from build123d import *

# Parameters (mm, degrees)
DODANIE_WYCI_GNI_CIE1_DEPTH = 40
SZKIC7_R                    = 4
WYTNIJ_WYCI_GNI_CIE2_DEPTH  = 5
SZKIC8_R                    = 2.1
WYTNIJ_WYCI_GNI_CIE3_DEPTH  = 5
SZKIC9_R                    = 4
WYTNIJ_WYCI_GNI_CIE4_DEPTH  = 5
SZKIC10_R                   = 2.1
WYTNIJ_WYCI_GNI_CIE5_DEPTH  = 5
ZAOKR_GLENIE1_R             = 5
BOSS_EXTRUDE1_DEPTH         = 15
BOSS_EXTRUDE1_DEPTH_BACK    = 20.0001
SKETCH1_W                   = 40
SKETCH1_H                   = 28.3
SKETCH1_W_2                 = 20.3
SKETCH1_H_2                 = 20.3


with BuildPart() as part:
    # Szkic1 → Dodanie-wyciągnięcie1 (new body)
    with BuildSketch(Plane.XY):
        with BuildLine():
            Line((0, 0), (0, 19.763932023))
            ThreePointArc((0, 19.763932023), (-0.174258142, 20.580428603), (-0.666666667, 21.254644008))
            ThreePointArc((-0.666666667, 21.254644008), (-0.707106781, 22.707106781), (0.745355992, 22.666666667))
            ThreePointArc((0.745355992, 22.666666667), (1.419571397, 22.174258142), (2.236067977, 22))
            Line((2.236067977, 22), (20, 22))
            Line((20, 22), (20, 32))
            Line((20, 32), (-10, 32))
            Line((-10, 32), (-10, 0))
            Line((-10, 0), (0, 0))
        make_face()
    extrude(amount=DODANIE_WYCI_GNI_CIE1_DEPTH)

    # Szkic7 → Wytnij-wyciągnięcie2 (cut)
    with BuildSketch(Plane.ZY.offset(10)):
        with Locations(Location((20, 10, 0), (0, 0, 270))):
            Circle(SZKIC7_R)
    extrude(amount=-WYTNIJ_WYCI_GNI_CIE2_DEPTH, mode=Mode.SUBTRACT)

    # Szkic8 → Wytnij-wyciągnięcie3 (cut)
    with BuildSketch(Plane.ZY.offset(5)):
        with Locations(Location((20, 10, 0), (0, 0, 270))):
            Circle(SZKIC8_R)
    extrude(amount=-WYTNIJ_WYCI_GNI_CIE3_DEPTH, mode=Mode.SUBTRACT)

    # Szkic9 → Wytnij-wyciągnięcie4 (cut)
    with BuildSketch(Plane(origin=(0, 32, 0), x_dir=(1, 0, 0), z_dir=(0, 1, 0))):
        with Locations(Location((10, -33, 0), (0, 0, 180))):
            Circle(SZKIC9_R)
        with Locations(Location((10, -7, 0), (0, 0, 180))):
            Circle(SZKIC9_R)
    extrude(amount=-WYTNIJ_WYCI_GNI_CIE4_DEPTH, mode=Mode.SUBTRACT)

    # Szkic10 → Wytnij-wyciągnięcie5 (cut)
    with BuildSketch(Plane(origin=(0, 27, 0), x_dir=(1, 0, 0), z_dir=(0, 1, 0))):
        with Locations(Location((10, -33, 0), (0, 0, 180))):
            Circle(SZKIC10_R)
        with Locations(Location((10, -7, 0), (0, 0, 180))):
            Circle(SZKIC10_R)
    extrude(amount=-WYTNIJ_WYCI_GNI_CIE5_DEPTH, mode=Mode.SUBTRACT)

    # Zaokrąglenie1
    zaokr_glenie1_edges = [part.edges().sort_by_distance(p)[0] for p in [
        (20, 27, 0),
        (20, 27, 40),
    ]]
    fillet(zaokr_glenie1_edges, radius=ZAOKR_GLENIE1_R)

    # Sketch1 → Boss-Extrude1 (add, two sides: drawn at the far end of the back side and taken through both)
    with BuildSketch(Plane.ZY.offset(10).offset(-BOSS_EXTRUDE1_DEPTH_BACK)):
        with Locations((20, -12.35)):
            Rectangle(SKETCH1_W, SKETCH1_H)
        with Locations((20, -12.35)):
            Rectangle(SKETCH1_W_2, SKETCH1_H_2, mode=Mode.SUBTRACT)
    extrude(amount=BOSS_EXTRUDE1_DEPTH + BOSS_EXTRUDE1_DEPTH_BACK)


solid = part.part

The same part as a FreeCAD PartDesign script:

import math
import FreeCAD as App
import Part
import Sketcher

V = App.Vector


def edges_at(feature, points):
    """Names of the edges that pass closest to the given points."""
    edges = feature.Shape.Edges
    near = lambda p: min(range(len(edges)), key=lambda i: edges[i].distToShape(Part.Vertex(*p))[0])
    return sorted({f"Edge{near(p) + 1}" for p in points})

doc = App.newDocument("Part")
params = doc.addObject("Spreadsheet::Sheet", "Params")
for row, (alias, value) in enumerate([
    ("sketch1_radius", "2 mm"),
    ("sketch1_radius2", "1 mm"),
    ("sketch1_width", "30 mm"),
    ("sketch1_width2", "10 mm"),
    ("sketch1_height", "32 mm"),
    ("pad1_length", "40 mm"),
    ("sketch2_diameter", "8 mm"),
    ("pocket1_length", "5 mm"),
    ("sketch3_diameter", "4.2 mm"),
    ("pocket2_length", "5 mm"),
    ("sketch4_diameter", "8 mm"),
    ("pocket3_length", "5 mm"),
    ("sketch5_diameter", "4.2 mm"),
    ("pocket4_length", "5 mm"),
    ("fillet_radius", "5 mm"),
    ("sketch6_height", "40 mm"),
    ("sketch6_width", "28.3 mm"),
    ("sketch6_width2", "20.3 mm"),
    ("pad2_length", "15 mm"),
    ("pad2_length2", "20.0001 mm"),
], start=1):
    params.set(f"A{row}", alias)
    params.set(f"B{row}", "=" + value)
    params.setAlias(f"B{row}", alias)

body = doc.addObject("PartDesign::Body", "Body")

sketch1 = body.newObject("Sketcher::SketchObject", "Sketch")
sketch1.AttachmentSupport = (doc.getObject("XY_Plane"), [""])
sketch1.MapMode = "FlatFace"
sketch1.addGeometry([
    Part.LineSegment(V(0, 0, 0), V(0, 19.8, 0)),
    Part.ArcOfCircle(Part.Circle(V(-2, 19.8, 0), V(0, 0, 1), 2), math.radians(0), math.radians(48)),
    Part.ArcOfCircle(Part.Circle(V(0, 22, 0), V(0, 0, 1), 1), math.radians(42), math.radians(228)),
    Part.ArcOfCircle(Part.Circle(V(2.2, 24, 0), V(0, 0, 1), 2), math.radians(-138), math.radians(-90)),
    Part.LineSegment(V(2.2, 22, 0), V(20, 22, 0)),
    Part.LineSegment(V(20, 22, 0), V(20, 32, 0)),
    Part.LineSegment(V(20, 32, 0), V(-10, 32, 0)),
    Part.LineSegment(V(-10, 32, 0), V(-10, 0, 0)),
    Part.LineSegment(V(-10, 0, 0), V(0, 0, 0)),
], False)
sketch1.addConstraint([
    Sketcher.Constraint("Tangent", 0, 2, 1, 1),
    Sketcher.Constraint("Tangent", 1, 2, 2, 2),
    Sketcher.Constraint("Tangent", 2, 1, 3, 1),
    Sketcher.Constraint("Tangent", 3, 2, 4, 1),
    Sketcher.Constraint("Coincident", 4, 2, 5, 1),
    Sketcher.Constraint("Coincident", 5, 2, 6, 1),
    Sketcher.Constraint("Coincident", 6, 2, 7, 1),
    Sketcher.Constraint("Coincident", 7, 2, 8, 1),
    Sketcher.Constraint("Coincident", 8, 2, 0, 1),
    Sketcher.Constraint("Vertical", 0),
    Sketcher.Constraint("Horizontal", 4),
    Sketcher.Constraint("Vertical", 5),
    Sketcher.Constraint("Horizontal", 6),
    Sketcher.Constraint("Vertical", 7),
    Sketcher.Constraint("Horizontal", 8),
    Sketcher.Constraint("Coincident", 8, 2, -1, 1),
    Sketcher.Constraint("Equal", 1, 3),
    Sketcher.Constraint("PointOnObject", 2, 3, -2),
    Sketcher.Constraint("Horizontal", 2, 3, 3, 2),
    Sketcher.Constraint("Equal", 8, 5),
    Sketcher.Constraint("Radius", 1, 2.0),
    Sketcher.Constraint("Radius", 2, 1.0),
    Sketcher.Constraint("DistanceX", 6, 2, 6, 1, 30.0),
    Sketcher.Constraint("DistanceX", 8, 1, 8, 2, 10.0),
    Sketcher.Constraint("DistanceY", 7, 2, 7, 1, 32.0),
])
sketch1.setExpression("Constraints[20]", "Params.sketch1_radius")
sketch1.setExpression("Constraints[21]", "Params.sketch1_radius2")
sketch1.setExpression("Constraints[22]", "Params.sketch1_width")
sketch1.setExpression("Constraints[23]", "Params.sketch1_width2")
sketch1.setExpression("Constraints[24]", "Params.sketch1_height")
pad1 = body.newObject("PartDesign::Pad", "Pad")
pad1.Profile = sketch1
pad1.setExpression("Length", "Params.pad1_length")

sketch2 = body.newObject("Sketcher::SketchObject", "Sketch001")
sketch2.AttachmentSupport = (doc.getObject("YZ_Plane"), [""])
sketch2.MapMode = "FlatFace"
sketch2.AttachmentOffset = App.Placement(V(0, 0, -10), App.Rotation())
sketch2.addGeometry(Part.Circle(V(10, 20, 0), V(0, 0, 1), 4), False)
sketch2.addConstraint([
    Sketcher.Constraint("Diameter", 0, 8.0),
    Sketcher.Constraint("DistanceX", -1, 1, 0, 3, 10.0),
    Sketcher.Constraint("DistanceY", -1, 1, 0, 3, 20.0),
])
sketch2.setExpression("Constraints[0]", "Params.sketch2_diameter")
pocket1 = body.newObject("PartDesign::Pocket", "Pocket")
pocket1.Profile = sketch2
pocket1.setExpression("Length", "Params.pocket1_length")
pocket1.Reversed = True

sketch3 = body.newObject("Sketcher::SketchObject", "Sketch002")
sketch3.AttachmentSupport = (doc.getObject("YZ_Plane"), [""])
sketch3.MapMode = "FlatFace"
sketch3.AttachmentOffset = App.Placement(V(0, 0, -5), App.Rotation())
sketch3.addGeometry(Part.Circle(V(10, 20, 0), V(0, 0, 1), 2.1), False)
sketch3.addConstraint([
    Sketcher.Constraint("Diameter", 0, 4.2),
    Sketcher.Constraint("DistanceX", -1, 1, 0, 3, 10.0),
    Sketcher.Constraint("DistanceY", -1, 1, 0, 3, 20.0),
])
sketch3.setExpression("Constraints[0]", "Params.sketch3_diameter")
pocket2 = body.newObject("PartDesign::Pocket", "Pocket001")
pocket2.Profile = sketch3
pocket2.setExpression("Length", "Params.pocket2_length")
pocket2.Reversed = True

sketch4 = body.newObject("Sketcher::SketchObject", "Sketch003")
sketch4.AttachmentSupport = (doc.getObject("XZ_Plane"), [""])
sketch4.MapMode = "FlatFace"
sketch4.AttachmentOffset = App.Placement(V(0, 0, -32), App.Rotation())
sketch4.addGeometry([
    Part.Circle(V(10, 33, 0), V(0, 0, 1), 4),
    Part.Circle(V(10, 7, 0), V(0, 0, 1), 4),
], False)
sketch4.addConstraint([
    Sketcher.Constraint("Equal", 0, 1),
    Sketcher.Constraint("Vertical", 0, 3, 1, 3),
    Sketcher.Constraint("Diameter", 0, 8.0),
    Sketcher.Constraint("DistanceX", -1, 1, 0, 3, 10.0),
    Sketcher.Constraint("DistanceY", -1, 1, 0, 3, 33.0),
    Sketcher.Constraint("DistanceY", -1, 1, 1, 3, 7.0),
])
sketch4.setExpression("Constraints[2]", "Params.sketch4_diameter")
pocket3 = body.newObject("PartDesign::Pocket", "Pocket002")
pocket3.Profile = sketch4
pocket3.setExpression("Length", "Params.pocket3_length")
pocket3.Reversed = True

sketch5 = body.newObject("Sketcher::SketchObject", "Sketch004")
sketch5.AttachmentSupport = (doc.getObject("XZ_Plane"), [""])
sketch5.MapMode = "FlatFace"
sketch5.AttachmentOffset = App.Placement(V(0, 0, -27), App.Rotation())
sketch5.addGeometry([
    Part.Circle(V(10, 33, 0), V(0, 0, 1), 2.1),
    Part.Circle(V(10, 7, 0), V(0, 0, 1), 2.1),
], False)
sketch5.addConstraint([
    Sketcher.Constraint("Equal", 0, 1),
    Sketcher.Constraint("Vertical", 0, 3, 1, 3),
    Sketcher.Constraint("Diameter", 0, 4.2),
    Sketcher.Constraint("DistanceX", -1, 1, 0, 3, 10.0),
    Sketcher.Constraint("DistanceY", -1, 1, 0, 3, 33.0),
    Sketcher.Constraint("DistanceY", -1, 1, 1, 3, 7.0),
])
sketch5.setExpression("Constraints[2]", "Params.sketch5_diameter")
pocket4 = body.newObject("PartDesign::Pocket", "Pocket003")
pocket4.Profile = sketch5
pocket4.setExpression("Length", "Params.pocket4_length")
pocket4.Reversed = True
doc.recompute()

fillet = body.newObject("PartDesign::Fillet", "Fillet")
fillet.Base = (pocket4, edges_at(pocket4, [(20, 27, 0), (20, 27, 40)]))
fillet.setExpression("Radius", "Params.fillet_radius")

sketch6 = body.newObject("Sketcher::SketchObject", "Sketch005")
sketch6.AttachmentSupport = (doc.getObject("YZ_Plane"), [""])
sketch6.MapMode = "FlatFace"
sketch6.AttachmentOffset = App.Placement(V(0, 0, -10), App.Rotation())
sketch6.addGeometry([
    Part.LineSegment(V(2, 0, 0), V(-26, 0, 0)),
    Part.LineSegment(V(-26, 0, 0), V(-26, 40, 0)),
    Part.LineSegment(V(-26, 40, 0), V(2, 40, 0)),
    Part.LineSegment(V(2, 40, 0), V(2, 0, 0)),
    Part.LineSegment(V(-22, 30, 0), V(-22, 10, 0)),
    Part.LineSegment(V(-22, 10, 0), V(-2, 10, 0)),
    Part.LineSegment(V(-2, 10, 0), V(-2, 30, 0)),
    Part.LineSegment(V(-2, 30, 0), V(-22, 30, 0)),
], False)
sketch6.addConstraint([
    Sketcher.Constraint("Coincident", 0, 2, 1, 1),
    Sketcher.Constraint("Coincident", 1, 2, 2, 1),
    Sketcher.Constraint("Coincident", 2, 2, 3, 1),
    Sketcher.Constraint("Coincident", 3, 2, 0, 1),
    Sketcher.Constraint("Coincident", 4, 2, 5, 1),
    Sketcher.Constraint("Coincident", 5, 2, 6, 1),
    Sketcher.Constraint("Coincident", 6, 2, 7, 1),
    Sketcher.Constraint("Coincident", 7, 2, 4, 1),
    Sketcher.Constraint("Horizontal", 0),
    Sketcher.Constraint("Vertical", 1),
    Sketcher.Constraint("Horizontal", 2),
    Sketcher.Constraint("Vertical", 3),
    Sketcher.Constraint("Vertical", 4),
    Sketcher.Constraint("Horizontal", 5),
    Sketcher.Constraint("Vertical", 6),
    Sketcher.Constraint("Horizontal", 7),
    Sketcher.Constraint("PointOnObject", 0, 2, -1),
    Sketcher.Constraint("Equal", 7, 4),
    Sketcher.Constraint("DistanceY", 1, 1, 1, 2, 40.0),
    Sketcher.Constraint("DistanceX", 0, 2, 0, 1, 28.3),
    Sketcher.Constraint("DistanceX", 5, 1, 5, 2, 20.3),
    Sketcher.Constraint("DistanceX", 0, 2, 4, 2, 4.0),
    Sketcher.Constraint("DistanceX", 0, 2, -1, 1, 26.5),
    Sketcher.Constraint("DistanceY", -1, 1, 4, 2, 9.85),
])
sketch6.setExpression("Constraints[18]", "Params.sketch6_height")
sketch6.setExpression("Constraints[19]", "Params.sketch6_width")
sketch6.setExpression("Constraints[20]", "Params.sketch6_width2")
pad2 = body.newObject("PartDesign::Pad", "Pad001")
pad2.Profile = sketch6
pad2.Type = "TwoLengths"
pad2.setExpression("Length", "Params.pad2_length")
pad2.setExpression("Length2", "Params.pad2_length2")
pad2.Reversed = True

doc.recompute()
